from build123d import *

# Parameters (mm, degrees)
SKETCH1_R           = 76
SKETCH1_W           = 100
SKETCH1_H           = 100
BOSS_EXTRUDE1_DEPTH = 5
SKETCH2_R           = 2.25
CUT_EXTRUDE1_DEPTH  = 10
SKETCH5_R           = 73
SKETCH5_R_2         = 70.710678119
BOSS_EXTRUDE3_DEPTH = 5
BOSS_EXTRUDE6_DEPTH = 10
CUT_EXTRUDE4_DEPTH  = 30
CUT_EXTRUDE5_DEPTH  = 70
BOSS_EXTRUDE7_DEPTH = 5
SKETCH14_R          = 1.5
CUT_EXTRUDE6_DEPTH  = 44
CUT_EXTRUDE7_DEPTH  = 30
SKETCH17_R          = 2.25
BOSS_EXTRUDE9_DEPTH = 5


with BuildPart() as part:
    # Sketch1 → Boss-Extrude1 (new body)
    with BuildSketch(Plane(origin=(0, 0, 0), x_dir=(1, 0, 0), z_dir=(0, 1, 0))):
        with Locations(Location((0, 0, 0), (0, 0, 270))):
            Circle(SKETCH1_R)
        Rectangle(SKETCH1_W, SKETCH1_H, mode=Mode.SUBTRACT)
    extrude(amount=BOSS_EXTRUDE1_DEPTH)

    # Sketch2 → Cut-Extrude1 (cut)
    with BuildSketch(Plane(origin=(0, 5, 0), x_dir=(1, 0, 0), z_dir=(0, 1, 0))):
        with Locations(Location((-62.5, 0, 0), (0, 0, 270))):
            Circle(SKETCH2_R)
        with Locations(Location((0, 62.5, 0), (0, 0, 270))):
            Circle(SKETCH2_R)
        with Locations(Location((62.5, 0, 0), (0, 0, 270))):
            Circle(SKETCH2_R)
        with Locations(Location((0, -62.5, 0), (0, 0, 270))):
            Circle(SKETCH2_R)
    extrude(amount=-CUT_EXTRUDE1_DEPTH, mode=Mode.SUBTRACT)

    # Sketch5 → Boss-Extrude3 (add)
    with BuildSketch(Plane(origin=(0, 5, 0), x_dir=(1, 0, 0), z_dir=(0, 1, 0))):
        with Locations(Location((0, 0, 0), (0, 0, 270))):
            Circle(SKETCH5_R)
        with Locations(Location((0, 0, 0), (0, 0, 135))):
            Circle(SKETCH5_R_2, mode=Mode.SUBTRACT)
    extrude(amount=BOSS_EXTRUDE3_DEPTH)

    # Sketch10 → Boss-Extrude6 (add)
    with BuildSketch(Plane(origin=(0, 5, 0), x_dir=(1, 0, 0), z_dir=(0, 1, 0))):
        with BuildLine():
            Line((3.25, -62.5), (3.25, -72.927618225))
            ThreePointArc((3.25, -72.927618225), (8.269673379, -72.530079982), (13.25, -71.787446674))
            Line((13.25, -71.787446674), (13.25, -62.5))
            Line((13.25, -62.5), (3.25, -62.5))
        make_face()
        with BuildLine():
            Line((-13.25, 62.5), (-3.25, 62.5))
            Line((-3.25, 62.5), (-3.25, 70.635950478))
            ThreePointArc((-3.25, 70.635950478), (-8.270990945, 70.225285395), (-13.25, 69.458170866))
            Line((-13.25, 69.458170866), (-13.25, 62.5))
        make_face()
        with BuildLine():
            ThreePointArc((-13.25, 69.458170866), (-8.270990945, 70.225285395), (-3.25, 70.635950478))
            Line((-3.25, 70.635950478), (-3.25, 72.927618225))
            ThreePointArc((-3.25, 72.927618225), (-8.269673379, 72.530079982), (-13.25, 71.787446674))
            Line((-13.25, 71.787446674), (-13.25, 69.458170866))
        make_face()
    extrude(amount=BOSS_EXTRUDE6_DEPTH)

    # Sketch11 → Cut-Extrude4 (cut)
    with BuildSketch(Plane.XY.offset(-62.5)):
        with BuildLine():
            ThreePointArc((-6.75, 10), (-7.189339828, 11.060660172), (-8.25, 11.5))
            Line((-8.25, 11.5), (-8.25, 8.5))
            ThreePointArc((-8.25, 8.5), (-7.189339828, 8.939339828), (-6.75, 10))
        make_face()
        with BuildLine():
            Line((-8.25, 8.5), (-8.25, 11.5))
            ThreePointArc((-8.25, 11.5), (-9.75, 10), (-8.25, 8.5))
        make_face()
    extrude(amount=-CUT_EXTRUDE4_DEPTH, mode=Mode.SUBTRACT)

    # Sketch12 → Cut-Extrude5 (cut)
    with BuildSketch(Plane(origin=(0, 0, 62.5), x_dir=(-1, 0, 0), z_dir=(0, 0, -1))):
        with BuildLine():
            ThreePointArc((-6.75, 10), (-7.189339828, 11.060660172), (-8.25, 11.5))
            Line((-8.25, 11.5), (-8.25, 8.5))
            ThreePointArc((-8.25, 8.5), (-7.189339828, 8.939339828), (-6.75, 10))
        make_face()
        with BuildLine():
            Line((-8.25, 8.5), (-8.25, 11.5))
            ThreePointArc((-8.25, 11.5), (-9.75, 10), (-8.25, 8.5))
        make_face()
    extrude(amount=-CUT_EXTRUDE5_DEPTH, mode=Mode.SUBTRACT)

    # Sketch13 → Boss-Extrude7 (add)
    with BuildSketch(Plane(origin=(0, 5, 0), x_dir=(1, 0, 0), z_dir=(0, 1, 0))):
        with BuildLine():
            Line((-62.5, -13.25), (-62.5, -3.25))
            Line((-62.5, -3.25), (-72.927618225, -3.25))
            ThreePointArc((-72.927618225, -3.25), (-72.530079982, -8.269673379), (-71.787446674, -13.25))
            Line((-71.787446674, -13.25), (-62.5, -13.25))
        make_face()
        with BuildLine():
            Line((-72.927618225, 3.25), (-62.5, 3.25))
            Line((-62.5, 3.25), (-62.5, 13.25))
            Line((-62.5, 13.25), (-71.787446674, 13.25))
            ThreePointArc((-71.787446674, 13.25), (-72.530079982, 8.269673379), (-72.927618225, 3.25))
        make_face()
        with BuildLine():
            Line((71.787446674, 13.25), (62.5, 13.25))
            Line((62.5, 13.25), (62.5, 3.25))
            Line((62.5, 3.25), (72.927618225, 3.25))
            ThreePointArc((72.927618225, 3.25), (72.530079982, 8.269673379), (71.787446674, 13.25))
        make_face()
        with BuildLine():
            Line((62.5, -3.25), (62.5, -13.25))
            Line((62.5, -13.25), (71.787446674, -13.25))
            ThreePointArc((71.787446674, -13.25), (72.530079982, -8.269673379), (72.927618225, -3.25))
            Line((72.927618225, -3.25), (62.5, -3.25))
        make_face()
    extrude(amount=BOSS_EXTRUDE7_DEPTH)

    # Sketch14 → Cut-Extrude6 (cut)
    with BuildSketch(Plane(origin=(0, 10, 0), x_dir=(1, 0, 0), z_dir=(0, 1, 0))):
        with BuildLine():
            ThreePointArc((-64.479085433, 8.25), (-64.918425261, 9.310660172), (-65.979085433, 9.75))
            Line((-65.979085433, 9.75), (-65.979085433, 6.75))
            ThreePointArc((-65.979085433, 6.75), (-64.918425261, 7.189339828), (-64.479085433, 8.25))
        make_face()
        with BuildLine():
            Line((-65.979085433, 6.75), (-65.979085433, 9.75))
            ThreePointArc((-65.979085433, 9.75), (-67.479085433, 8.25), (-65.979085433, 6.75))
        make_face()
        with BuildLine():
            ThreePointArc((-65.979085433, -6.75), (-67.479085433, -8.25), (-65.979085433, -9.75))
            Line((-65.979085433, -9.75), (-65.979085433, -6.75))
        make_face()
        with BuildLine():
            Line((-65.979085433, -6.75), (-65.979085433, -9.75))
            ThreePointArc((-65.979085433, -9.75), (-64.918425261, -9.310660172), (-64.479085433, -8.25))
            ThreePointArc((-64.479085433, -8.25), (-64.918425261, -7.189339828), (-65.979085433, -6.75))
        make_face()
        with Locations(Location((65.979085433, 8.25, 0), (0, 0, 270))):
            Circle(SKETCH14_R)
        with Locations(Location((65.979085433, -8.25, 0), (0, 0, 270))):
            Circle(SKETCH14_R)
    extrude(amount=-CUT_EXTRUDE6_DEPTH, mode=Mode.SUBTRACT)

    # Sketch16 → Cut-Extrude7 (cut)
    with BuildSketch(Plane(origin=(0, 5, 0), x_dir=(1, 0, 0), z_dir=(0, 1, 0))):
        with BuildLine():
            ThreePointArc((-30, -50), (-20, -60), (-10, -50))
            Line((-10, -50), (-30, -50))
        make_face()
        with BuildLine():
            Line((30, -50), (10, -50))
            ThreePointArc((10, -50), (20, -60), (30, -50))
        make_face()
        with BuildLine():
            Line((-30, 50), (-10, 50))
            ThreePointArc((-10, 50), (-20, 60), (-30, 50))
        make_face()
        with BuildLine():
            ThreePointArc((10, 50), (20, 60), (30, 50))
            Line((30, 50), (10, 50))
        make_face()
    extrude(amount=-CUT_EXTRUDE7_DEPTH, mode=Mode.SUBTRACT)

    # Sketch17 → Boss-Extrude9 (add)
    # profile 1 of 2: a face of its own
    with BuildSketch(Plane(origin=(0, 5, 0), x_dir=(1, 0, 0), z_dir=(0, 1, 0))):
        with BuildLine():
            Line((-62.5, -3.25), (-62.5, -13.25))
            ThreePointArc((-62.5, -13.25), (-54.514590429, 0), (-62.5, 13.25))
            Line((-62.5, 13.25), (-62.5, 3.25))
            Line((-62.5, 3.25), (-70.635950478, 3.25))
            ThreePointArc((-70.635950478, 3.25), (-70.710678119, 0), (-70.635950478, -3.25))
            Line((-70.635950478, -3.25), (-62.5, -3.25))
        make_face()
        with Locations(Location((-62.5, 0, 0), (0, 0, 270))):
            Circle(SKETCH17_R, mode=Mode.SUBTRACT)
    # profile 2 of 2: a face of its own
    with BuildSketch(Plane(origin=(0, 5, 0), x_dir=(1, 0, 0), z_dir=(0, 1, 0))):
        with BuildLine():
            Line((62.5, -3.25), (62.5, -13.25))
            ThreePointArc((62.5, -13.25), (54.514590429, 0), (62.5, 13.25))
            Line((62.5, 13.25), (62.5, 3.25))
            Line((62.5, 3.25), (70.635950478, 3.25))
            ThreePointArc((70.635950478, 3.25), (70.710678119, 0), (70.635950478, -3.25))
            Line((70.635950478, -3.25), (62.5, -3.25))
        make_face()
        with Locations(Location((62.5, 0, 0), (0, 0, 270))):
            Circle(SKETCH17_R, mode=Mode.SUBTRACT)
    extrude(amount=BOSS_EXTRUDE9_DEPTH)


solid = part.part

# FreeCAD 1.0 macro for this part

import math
import FreeCAD as App
import Part
import Sketcher
from FreeCAD import Vector

doc = App.newDocument("Part")
body = doc.addObject("PartDesign::Body", "Body")

sketch1 = doc.addObject("Sketcher::SketchObject", "Sketch")
body.addObject(sketch1)
sketch1.AttachmentSupport = (doc.XZ_Plane, [""])
sketch1.MapMode = "FlatFace"
sketch1.addGeometry([
    Part.Circle(Vector(0, 0, 0), Vector(0, 0, 1), 76),
    Part.LineSegment(Vector(50, 50, 0), Vector(-50, 50, 0)),
    Part.LineSegment(Vector(-50, 50, 0), Vector(-50, -50, 0)),
    Part.LineSegment(Vector(-50, -50, 0), Vector(50, -50, 0)),
    Part.LineSegment(Vector(50, -50, 0), Vector(50, 50, 0)),
], False)
sketch1.addConstraint([
    Sketcher.Constraint("Coincident", 1, 2, 2, 1),
    Sketcher.Constraint("Coincident", 2, 2, 3, 1),
    Sketcher.Constraint("Coincident", 3, 2, 4, 1),
    Sketcher.Constraint("Coincident", 4, 2, 1, 1),
    Sketcher.Constraint("Horizontal", 1),
    Sketcher.Constraint("Vertical", 2),
    Sketcher.Constraint("Horizontal", 3),
    Sketcher.Constraint("Vertical", 4),
    Sketcher.Constraint("Coincident", 0, 3, -1, 1),
    Sketcher.Constraint("Symmetric", 1, 2, 3, 2, -1, 1),
    Sketcher.Constraint("Equal", 3, 2),
    Sketcher.Constraint("Diameter", 0, 152.0),
    Sketcher.Constraint("DistanceX", 1, 2, 1, 1, 100.0),
])
pad1 = doc.addObject("PartDesign::Pad", "Pad")
body.addObject(pad1)
pad1.Profile = sketch1
pad1.Length = 5
pad1.Reversed = True

sketch2 = doc.addObject("Sketcher::SketchObject", "Sketch001")
body.addObject(sketch2)
sketch2.AttachmentSupport = (doc.XZ_Plane, [""])
sketch2.MapMode = "FlatFace"
sketch2.AttachmentOffset = App.Placement(Vector(0, 0, -5), App.Rotation())
sketch2.addGeometry([
    Part.Circle(Vector(-62.5, 0, 0), Vector(0, 0, 1), 2.2),
    Part.Circle(Vector(0, -62.5, 0), Vector(0, 0, 1), 2.2),
    Part.Circle(Vector(62.5, 0, 0), Vector(0, 0, 1), 2.2),
    Part.Circle(Vector(0, 62.5, 0), Vector(0, 0, 1), 2.2),
], False)
sketch2.addConstraint([
    Sketcher.Constraint("Equal", 0, 1),
    Sketcher.Constraint("Equal", 1, 2),
    Sketcher.Constraint("Equal", 2, 3),
    Sketcher.Constraint("Symmetric", 0, 3, 2, 3, -1, 1),
    Sketcher.Constraint("Symmetric", 1, 3, 3, 3, -1, 1),
    Sketcher.Constraint("PointOnObject", 0, 3, -1),
    Sketcher.Constraint("PointOnObject", 1, 3, -2),
    Sketcher.Constraint("Diameter", 0, 4.5),
    Sketcher.Constraint("DistanceX", 0, 3, 2, 3, 125.0),
    Sketcher.Constraint("DistanceY", 1, 3, 3, 3, 125.0),
])
pocket1 = doc.addObject("PartDesign::Pocket", "Pocket")
body.addObject(pocket1)
pocket1.Profile = sketch2
pocket1.Length = 10
pocket1.Reversed = True

sketch3 = doc.addObject("Sketcher::SketchObject", "Sketch002")
body.addObject(sketch3)
sketch3.AttachmentSupport = (doc.XZ_Plane, [""])
sketch3.MapMode = "FlatFace"
sketch3.AttachmentOffset = App.Placement(Vector(0, 0, -5), App.Rotation())
sketch3.addGeometry([
    Part.Circle(Vector(0, 0, 0), Vector(0, 0, 1), 73),
    Part.Circle(Vector(0, 0, 0), Vector(0, 0, 1), 71),
], False)
sketch3.addConstraint([
    Sketcher.Constraint("Coincident", 0, 3, -1, 1),
    Sketcher.Constraint("Coincident", 1, 3, -1, 1),
    Sketcher.Constraint("Diameter", 0, 146.0),
    Sketcher.Constraint("Diameter", 1, 141.421356),
])
pad2 = doc.addObject("PartDesign::Pad", "Pad001")
body.addObject(pad2)
pad2.Profile = sketch3
pad2.Length = 5
pad2.Reversed = True

sketch4 = doc.addObject("Sketcher::SketchObject", "Sketch003")
body.addObject(sketch4)
sketch4.AttachmentSupport = (doc.XZ_Plane, [""])
sketch4.MapMode = "FlatFace"
sketch4.AttachmentOffset = App.Placement(Vector(0, 0, -5), App.Rotation())
sketch4.addGeometry([
    Part.LineSegment(Vector(3, 62, 0), Vector(3, 73, 0)),
    Part.ArcOfCircle(Part.Circle(Vector(0, 0, 0), Vector(0, 0, 1), 73), math.radians(79.54), math.radians(87.45)),
    Part.LineSegment(Vector(13, 72, 0), Vector(13, 62, 0)),
    Part.LineSegment(Vector(13, 62, 0), Vector(3, 62, 0)),
    Part.LineSegment(Vector(-13, -62, 0), Vector(-3, -62, 0)),
    Part.LineSegment(Vector(-3, -62, 0), Vector(-3, -73, 0)),
    Part.ArcOfCircle(Part.Circle(Vector(0, 0, 0), Vector(0, 0, 1), 73), math.radians(-100.46), math.radians(-92.55)),
    Part.LineSegment(Vector(-13, -72, 0), Vector(-13, -62, 0)),
], False)
sketch4.addConstraint([
    Sketcher.Constraint("Coincident", 0, 2, 1, 2),
    Sketcher.Constraint("Coincident", 1, 1, 2, 1),
    Sketcher.Constraint("Coincident", 2, 2, 3, 1),
    Sketcher.Constraint("Coincident", 3, 2, 0, 1),
    Sketcher.Constraint("Coincident", 4, 2, 5, 1),
    Sketcher.Constraint("Coincident", 5, 2, 6, 2),
    Sketcher.Constraint("Coincident", 6, 1, 7, 1),
    Sketcher.Constraint("Coincident", 7, 2, 4, 1),
    Sketcher.Constraint("Vertical", 0),
    Sketcher.Constraint("Vertical", 2),
    Sketcher.Constraint("Horizontal", 3),
    Sketcher.Constraint("Horizontal", 4),
    Sketcher.Constraint("Vertical", 5),
    Sketcher.Constraint("Vertical", 7),
    Sketcher.Constraint("Coincident", 1, 3, -1, 1),
    Sketcher.Constraint("Coincident", 6, 3, -1, 1),
    Sketcher.Constraint("Equal", 1, 6),
    Sketcher.Constraint("Symmetric", 3, 2, 4, 2, -1, 1),
    Sketcher.Constraint("Equal", 3, 4),
    Sketcher.Constraint("Radius", 1, 73.0),
    Sketcher.Constraint("DistanceX", 3, 2, 3, 1, 10.0),
    Sketcher.Constraint("DistanceY", 4, 2, 3, 2, 125.0),
    Sketcher.Constraint("DistanceX", 4, 2, 3, 2, 6.5),
])
pad3 = doc.addObject("PartDesign::Pad", "Pad002")
body.addObject(pad3)
pad3.Profile = sketch4
pad3.Length = 10
pad3.Reversed = True

sketch5 = doc.addObject("Sketcher::SketchObject", "Sketch004")
body.addObject(sketch5)
sketch5.AttachmentSupport = (doc.XY_Plane, [""])
sketch5.MapMode = "FlatFace"
sketch5.AttachmentOffset = App.Placement(Vector(0, 0, -62.5), App.Rotation())
sketch5.addGeometry([
    Part.ArcOfCircle(Part.Circle(Vector(-8.2, 10, 0), Vector(0, 0, 1), 1.5), math.radians(0), math.radians(90)),
    Part.ArcOfCircle(Part.Circle(Vector(-8.2, 10, 0), Vector(0, 0, 1), 1.5), math.radians(90), math.radians(270)),
    Part.ArcOfCircle(Part.Circle(Vector(-8.2, 10, 0), Vector(0, 0, 1), 1.5), math.radians(-90), math.radians(0)),
], False)
sketch5.addConstraint([
    Sketcher.Constraint("Tangent", 0, 2, 1, 1),
    Sketcher.Constraint("Tangent", 1, 2, 2, 1),
    Sketcher.Constraint("Tangent", 2, 2, 0, 1),
    Sketcher.Constraint("Horizontal", 1, 3, 2, 2),
    Sketcher.Constraint("Vertical", 2, 3, 0, 2),
    Sketcher.Constraint("Vertical", 0, 2, 1, 2),
    Sketcher.Constraint("Radius", 0, 1.5),
    Sketcher.Constraint("DistanceY", -1, 1, 0, 3, 10.0),
    Sketcher.Constraint("DistanceX", 0, 3, -1, 1, 8.25),
])
pocket2 = doc.addObject("PartDesign::Pocket", "Pocket001")
body.addObject(pocket2)
pocket2.Profile = sketch5
pocket2.Length = 30

sketch6 = doc.addObject("Sketcher::SketchObject", "Sketch005")
body.addObject(sketch6)
sketch6.AttachmentSupport = (doc.XY_Plane, [""])
sketch6.MapMode = "FlatFace"
sketch6.AttachmentOffset = App.Placement(Vector(0, 0, 62.5), App.Rotation())
sketch6.addGeometry([
    Part.ArcOfCircle(Part.Circle(Vector(8.2, 10, 0), Vector(0, 0, 1), 1.5), math.radians(90), math.radians(180)),
    Part.ArcOfCircle(Part.Circle(Vector(8.2, 10, 0), Vector(0, 0, 1), 1.5), math.radians(-90), math.radians(90)),
    Part.ArcOfCircle(Part.Circle(Vector(8.2, 10, 0), Vector(0, 0, 1), 1.5), math.radians(180), math.radians(270)),
], False)
sketch6.addConstraint([
    Sketcher.Constraint("Tangent", 0, 1, 1, 2),
    Sketcher.Constraint("Tangent", 1, 1, 2, 2),
    Sketcher.Constraint("Tangent", 2, 1, 0, 2),
    Sketcher.Constraint("Horizontal", 1, 3, 2, 1),
    Sketcher.Constraint("Vertical", 2, 3, 0, 1),
    Sketcher.Constraint("Vertical", 0, 1, 1, 1),
    Sketcher.Constraint("Radius", 0, 1.5),
    Sketcher.Constraint("DistanceY", -1, 1, 0, 3, 10.0),
    Sketcher.Constraint("DistanceX", -1, 1, 0, 3, 8.25),
])
pocket3 = doc.addObject("PartDesign::Pocket", "Pocket002")
body.addObject(pocket3)
pocket3.Profile = sketch6
pocket3.Length = 70
pocket3.Reversed = True

sketch7 = doc.addObject("Sketcher::SketchObject", "Sketch006")
body.addObject(sketch7)
sketch7.AttachmentSupport = (doc.XZ_Plane, [""])
sketch7.MapMode = "FlatFace"
sketch7.AttachmentOffset = App.Placement(Vector(0, 0, -5), App.Rotation())
sketch7.addGeometry([
    Part.LineSegment(Vector(-62, 13, 0), Vector(-62, 3, 0)),
    Part.LineSegment(Vector(-62, 3, 0), Vector(-73, 3, 0)),
    Part.ArcOfCircle(Part.Circle(Vector(0, 0, 0), Vector(0, 0, 1), 73), math.radians(169.54), math.radians(177.45)),
    Part.LineSegment(Vector(-72, 13, 0), Vector(-62, 13, 0)),
    Part.LineSegment(Vector(-73, -3, 0), Vector(-62, -3, 0)),
    Part.LineSegment(Vector(-62, -3, 0), Vector(-62, -13, 0)),
    Part.LineSegment(Vector(-62, -13, 0), Vector(-72, -13, 0)),
    Part.ArcOfCircle(Part.Circle(Vector(0, 0, 0), Vector(0, 0, 1), 73), math.radians(-177.45), math.radians(-169.54)),
    Part.LineSegment(Vector(72, -13, 0), Vector(62, -13, 0)),
    Part.LineSegment(Vector(62, -13, 0), Vector(62, -3, 0)),
    Part.LineSegment(Vector(62, -3, 0), Vector(73, -3, 0)),
    Part.ArcOfCircle(Part.Circle(Vector(0, 0, 0), Vector(0, 0, 1), 73), math.radians(-10.46), math.radians(-2.55)),
    Part.LineSegment(Vector(62, 3, 0), Vector(62, 13, 0)),
    Part.LineSegment(Vector(62, 13, 0), Vector(72, 13, 0)),
    Part.ArcOfCircle(Part.Circle(Vector(0, 0, 0), Vector(0, 0, 1), 73), math.radians(2.55), math.radians(10.46)),
    Part.LineSegment(Vector(73, 3, 0), Vector(62, 3, 0)),
], False)
sketch7.addConstraint([
    Sketcher.Constraint("Coincident", 0, 2, 1, 1),
    Sketcher.Constraint("Coincident", 1, 2, 2, 2),
    Sketcher.Constraint("Coincident", 2, 1, 3, 1),
    Sketcher.Constraint("Coincident", 3, 2, 0, 1),
    Sketcher.Constraint("Coincident", 4, 2, 5, 1),
    Sketcher.Constraint("Coincident", 5, 2, 6, 1),
    Sketcher.Constraint("Coincident", 6, 2, 7, 2),
    Sketcher.Constraint("Coincident", 7, 1, 4, 1),
    Sketcher.Constraint("Coincident", 8, 2, 9, 1),
    Sketcher.Constraint("Coincident", 9, 2, 10, 1),
    Sketcher.Constraint("Coincident", 10, 2, 11, 2),
    Sketcher.Constraint("Coincident", 11, 1, 8, 1),
    Sketcher.Constraint("Coincident", 12, 2, 13, 1),
    Sketcher.Constraint("Coincident", 13, 2, 14, 2),
    Sketcher.Constraint("Coincident", 14, 1, 15, 1),
    Sketcher.Constraint("Coincident", 15, 2, 12, 1),
    Sketcher.Constraint("Vertical", 0),
    Sketcher.Constraint("Horizontal", 1),
    Sketcher.Constraint("Horizontal", 3),
    Sketcher.Constraint("Horizontal", 4),
    Sketcher.Constraint("Vertical", 5),
    Sketcher.Constraint("Horizontal", 6),
    Sketcher.Constraint("Horizontal", 8),
    Sketcher.Constraint("Vertical", 9),
    Sketcher.Constraint("Horizontal", 10),
    Sketcher.Constraint("Vertical", 12),
    Sketcher.Constraint("Horizontal", 13),
    Sketcher.Constraint("Horizontal", 15),
    Sketcher.Constraint("Coincident", 2, 3, -1, 1),
    Sketcher.Constraint("Coincident", 7, 3, -1, 1),
    Sketcher.Constraint("Coincident", 11, 3, -1, 1),
    Sketcher.Constraint("Coincident", 14, 3, -1, 1),
    Sketcher.Constraint("Equal", 2, 7),
    Sketcher.Constraint("Equal", 7, 11),
    Sketcher.Constraint("Equal", 11, 14),
    Sketcher.Constraint("Symmetric", 3, 2, 8, 2, -1, 1),
    Sketcher.Constraint("Symmetric", 5, 2, 12, 2, -1, 1),
    Sketcher.Constraint("Symmetric", 5, 2, 8, 2, -2),
    Sketcher.Constraint("Horizontal", 7, 1, 9, 2),
    Sketcher.Constraint("Horizontal", 1, 2, 14, 1),
    Sketcher.Constraint("Vertical", 1, 2, 7, 1),
    Sketcher.Constraint("Radius", 2, 73.0),
    Sketcher.Constraint("DistanceY", 0, 2, 0, 1, 10.0),
    Sketcher.Constraint("DistanceX", 5, 2, 8, 2, 125.0),
    Sketcher.Constraint("DistanceY", 4, 2, 0, 2, 6.5),
])
pad4 = doc.addObject("PartDesign::Pad", "Pad003")
body.addObject(pad4)
pad4.Profile = sketch7
pad4.Length = 5
pad4.Reversed = True

sketch8 = doc.addObject("Sketcher::SketchObject", "Sketch007")
body.addObject(sketch8)
sketch8.AttachmentSupport = (doc.XZ_Plane, [""])
sketch8.MapMode = "FlatFace"
sketch8.AttachmentOffset = App.Placement(Vector(0, 0, -10), App.Rotation())
sketch8.addGeometry([
    Part.ArcOfCircle(Part.Circle(Vector(-66, -8.3, 0), Vector(0, 0, 1), 1.5), math.radians(-90), math.radians(0)),
    Part.ArcOfCircle(Part.Circle(Vector(-66, -8.2, 0), Vector(0, 0, 1), 1.5), math.radians(90), math.radians(270)),
    Part.ArcOfCircle(Part.Circle(Vector(-66, -8.2, 0), Vector(0, 0, 1), 1.5), math.radians(0), math.radians(90)),
    Part.ArcOfCircle(Part.Circle(Vector(-66, 8.2, 0), Vector(0, 0, 1), 1.5), math.radians(90), math.radians(270)),
    Part.ArcOfCircle(Part.Circle(Vector(-66, 8.3, 0), Vector(0, 0, 1), 1.5), math.radians(0), math.radians(90)),
    Part.ArcOfCircle(Part.Circle(Vector(-66, 8.2, 0), Vector(0, 0, 1), 1.5), math.radians(-90), math.radians(0)),
    Part.Circle(Vector(66, -8.2, 0), Vector(0, 0, 1), 1.5),
    Part.Circle(Vector(66, 8.2, 0), Vector(0, 0, 1), 1.5),
], False)
sketch8.addConstraint([
    Sketcher.Constraint("Tangent", 0, 1, 1, 2),
    Sketcher.Constraint("Tangent", 1, 1, 2, 2),
    Sketcher.Constraint("Tangent", 2, 1, 0, 2),
    Sketcher.Constraint("Tangent", 3, 1, 4, 2),
    Sketcher.Constraint("Tangent", 4, 1, 5, 2),
    Sketcher.Constraint("Tangent", 5, 1, 3, 2),
    Sketcher.Constraint("Equal", 2, 3),
    Sketcher.Constraint("Equal", 5, 6),
    Sketcher.Constraint("Equal", 6, 7),
    Sketcher.Constraint("Symmetric", 3, 3, 6, 3, -1, 1),
    Sketcher.Constraint("Symmetric", 0, 3, 7, 3, -1, 1),
    Sketcher.Constraint("Symmetric", 0, 3, 6, 3, -2),
    Sketcher.Constraint("Horizontal", 6, 3, 2, 1),
    Sketcher.Constraint("Horizontal", 7, 3, 4, 1),
    Sketcher.Constraint("Vertical", 5, 3, 0, 1),
    Sketcher.Constraint("Vertical", 0, 1, 1, 1),
    Sketcher.Constraint("Vertical", 1, 1, 3, 1),
    Sketcher.Constraint("Vertical", 3, 1, 5, 1),
    Sketcher.Constraint("Diameter", 6, 3.0),
    Sketcher.Constraint("DistanceY", 0, 1, 5, 3, 18.0),
    Sketcher.Constraint("DistanceX", 0, 3, 6, 3, 131.958171),
])
pocket4 = doc.addObject("PartDesign::Pocket", "Pocket003")
body.addObject(pocket4)
pocket4.Profile = sketch8
pocket4.Length = 44
pocket4.Reversed = True

sketch9 = doc.addObject("Sketcher::SketchObject", "Sketch008")
body.addObject(sketch9)
sketch9.AttachmentSupport = (doc.XZ_Plane, [""])
sketch9.MapMode = "FlatFace"
sketch9.AttachmentOffset = App.Placement(Vector(0, 0, -5), App.Rotation())
sketch9.addGeometry([
    Part.ArcOfCircle(Part.Circle(Vector(-20, 50, 0), Vector(0, 0, 1), 10), math.radians(0), math.radians(180)),
    Part.LineSegment(Vector(-10, 50, 0), Vector(-30, 50, 0)),
    Part.LineSegment(Vector(30, 50, 0), Vector(10, 50, 0)),
    Part.ArcOfCircle(Part.Circle(Vector(20, 50, 0), Vector(0, 0, 1), 10), math.radians(0), math.radians(180)),
    Part.LineSegment(Vector(-30, -50, 0), Vector(-10, -50, 0)),
    Part.ArcOfCircle(Part.Circle(Vector(-20, -50, 0), Vector(0, 0, 1), 10), math.radians(180), math.radians(360)),
    Part.ArcOfCircle(Part.Circle(Vector(20, -50, 0), Vector(0, 0, 1), 10), math.radians(180), math.radians(360)),
    Part.LineSegment(Vector(10, -50, 0), Vector(30, -50, 0)),
], False)
sketch9.addConstraint([
    Sketcher.Constraint("Coincident", 0, 1, 1, 1),
    Sketcher.Constraint("Coincident", 1, 2, 0, 2),
    Sketcher.Constraint("Coincident", 2, 1, 3, 1),
    Sketcher.Constraint("Coincident", 3, 2, 2, 2),
    Sketcher.Constraint("Coincident", 4, 1, 5, 1),
    Sketcher.Constraint("Coincident", 5, 2, 4, 2),
    Sketcher.Constraint("Coincident", 6, 1, 7, 1),
    Sketcher.Constraint("Coincident", 7, 2, 6, 2),
    Sketcher.Constraint("Horizontal", 1),
    Sketcher.Constraint("Horizontal", 2),
    Sketcher.Constraint("Horizontal", 4),
    Sketcher.Constraint("Horizontal", 7),
    Sketcher.Constraint("Equal", 0, 3),
    Sketcher.Constraint("Equal", 3, 5),
    Sketcher.Constraint("Equal", 5, 6),
    Sketcher.Constraint("Symmetric", 3, 3, 5, 3, -1, 1),
    Sketcher.Constraint("Symmetric", 0, 3, 6, 3, -1, 1),
    Sketcher.Constraint("Symmetric", 0, 3, 3, 3, -2),
    Sketcher.Constraint("Horizontal", 3, 3, 0, 1),
    Sketcher.Constraint("Horizontal", 1, 2, 2, 1),
    Sketcher.Constraint("Horizontal", 6, 3, 4, 1),
    Sketcher.Constraint("Horizontal", 5, 2, 6, 1),
    Sketcher.Constraint("Radius", 0, 10.0),
    Sketcher.Constraint("DistanceX", 0, 3, -1, 1, 20.0),
    Sketcher.Constraint("DistanceY", -1, 1, 0, 3, 50.0),
])
pocket5 = doc.addObject("PartDesign::Pocket", "Pocket004")
body.addObject(pocket5)
pocket5.Profile = sketch9
pocket5.Length = 30
pocket5.Reversed = True

sketch10 = doc.addObject("Sketcher::SketchObject", "Sketch009")
body.addObject(sketch10)
sketch10.AttachmentSupport = (doc.XZ_Plane, [""])
sketch10.MapMode = "FlatFace"
sketch10.AttachmentOffset = App.Placement(Vector(0, 0, -5), App.Rotation())
sketch10.addGeometry([
    Part.LineSegment(Vector(-62.5, 3.2, 0), Vector(-62.5, 13.2, 0)),
    Part.ArcOfCircle(Part.Circle(Vector(-69.5, 0, 0), Vector(0, 0, 1), 15), math.radians(-62), math.radians(62)),
    Part.LineSegment(Vector(-62.5, -13.2, 0), Vector(-62.5, -3.2, 0)),
    Part.LineSegment(Vector(-62.5, -3.2, 0), Vector(-70.6, -3.2, 0)),
    Part.ArcOfCircle(Part.Circle(Vector(0, 0, 0), Vector(0, 0, 1), 70.7), math.radians(177.37), math.radians(182.63)),
    Part.LineSegment(Vector(-70.6, 3.2, 0), Vector(-62.5, 3.2, 0)),
    Part.Circle(Vector(-62.5, 0, 0), Vector(0, 0, 1), 2.2),
    Part.LineSegment(Vector(62.5, 13.2, 0), Vector(62.5, 3.2, 0)),
    Part.LineSegment(Vector(62.5, 3.2, 0), Vector(70.6, 3.2, 0)),
    Part.ArcOfCircle(Part.Circle(Vector(0, 0, 0), Vector(0, 0, 1), 70.7), math.radians(-2.63), math.radians(2.63)),
    Part.LineSegment(Vector(70.6, -3.2, 0), Vector(62.5, -3.2, 0)),
    Part.LineSegment(Vector(62.5, -3.2, 0), Vector(62.5, -13.2, 0)),
    Part.ArcOfCircle(Part.Circle(Vector(69.5, 0, 0), Vector(0, 0, 1), 15), math.radians(118), math.radians(242)),
    Part.Circle(Vector(62.5, 0, 0), Vector(0, 0, 1), 2.2),
], False)
sketch10.addConstraint([
    Sketcher.Constraint("Coincident", 0, 2, 1, 2),
    Sketcher.Constraint("Coincident", 1, 1, 2, 1),
    Sketcher.Constraint("Coincident", 2, 2, 3, 1),
    Sketcher.Constraint("Coincident", 3, 2, 4, 2),
    Sketcher.Constraint("Coincident", 4, 1, 5, 1),
    Sketcher.Constraint("Coincident", 5, 2, 0, 1),
    Sketcher.Constraint("Coincident", 7, 2, 8, 1),
    Sketcher.Constraint("Coincident", 8, 2, 9, 2),
    Sketcher.Constraint("Coincident", 9, 1, 10, 1),
    Sketcher.Constraint("Coincident", 10, 2, 11, 1),
    Sketcher.Constraint("Coincident", 11, 2, 12, 2),
    Sketcher.Constraint("Coincident", 12, 1, 7, 1),
    Sketcher.Constraint("Vertical", 0),
    Sketcher.Constraint("Vertical", 2),
    Sketcher.Constraint("Horizontal", 3),
    Sketcher.Constraint("Horizontal", 5),
    Sketcher.Constraint("Vertical", 7),
    Sketcher.Constraint("Horizontal", 8),
    Sketcher.Constraint("Horizontal", 10),
    Sketcher.Constraint("Vertical", 11),
    Sketcher.Constraint("Coincident", 4, 3, -1, 1),
    Sketcher.Constraint("Coincident", 9, 3, -1, 1),
    Sketcher.Constraint("Equal", 4, 9),
    Sketcher.Constraint("Equal", 1, 12),
    Sketcher.Constraint("Equal", 6, 13),
    Sketcher.Constraint("Symmetric", 1, 3, 12, 3, -1, 1),
    Sketcher.Constraint("Symmetric", 6, 3, 13, 3, -1, 1),
    Sketcher.Constraint("Symmetric", 2, 2, 7, 2, -1, 1),
    Sketcher.Constraint("Symmetric", 5, 2, 10, 2, -1, 1),
    Sketcher.Constraint("Symmetric", 5, 2, 7, 2, -2),
    Sketcher.Constraint("PointOnObject", 1, 3, -1),
    Sketcher.Constraint("PointOnObject", 6, 3, -1),
    Sketcher.Constraint("Vertical", 6, 3, 0, 2),
    Sketcher.Constraint("Diameter", 6, 4.5),
    Sketcher.Constraint("DistanceY", 0, 1, 0, 2, 10.0),
    Sketcher.Constraint("DistanceX", 1, 3, 6, 3, 7.0),
    Sketcher.Constraint("DistanceX", 6, 3, 12, 3, 132.0),
    Sketcher.Constraint("DistanceY", 1, 1, 0, 2, 26.5),
    Sketcher.Constraint("Radius", 4, 70.710677),
])
pad5 = doc.addObject("PartDesign::Pad", "Pad004")
body.addObject(pad5)
pad5.Profile = sketch10
pad5.Length = 5
pad5.Reversed = True

doc.recompute()
